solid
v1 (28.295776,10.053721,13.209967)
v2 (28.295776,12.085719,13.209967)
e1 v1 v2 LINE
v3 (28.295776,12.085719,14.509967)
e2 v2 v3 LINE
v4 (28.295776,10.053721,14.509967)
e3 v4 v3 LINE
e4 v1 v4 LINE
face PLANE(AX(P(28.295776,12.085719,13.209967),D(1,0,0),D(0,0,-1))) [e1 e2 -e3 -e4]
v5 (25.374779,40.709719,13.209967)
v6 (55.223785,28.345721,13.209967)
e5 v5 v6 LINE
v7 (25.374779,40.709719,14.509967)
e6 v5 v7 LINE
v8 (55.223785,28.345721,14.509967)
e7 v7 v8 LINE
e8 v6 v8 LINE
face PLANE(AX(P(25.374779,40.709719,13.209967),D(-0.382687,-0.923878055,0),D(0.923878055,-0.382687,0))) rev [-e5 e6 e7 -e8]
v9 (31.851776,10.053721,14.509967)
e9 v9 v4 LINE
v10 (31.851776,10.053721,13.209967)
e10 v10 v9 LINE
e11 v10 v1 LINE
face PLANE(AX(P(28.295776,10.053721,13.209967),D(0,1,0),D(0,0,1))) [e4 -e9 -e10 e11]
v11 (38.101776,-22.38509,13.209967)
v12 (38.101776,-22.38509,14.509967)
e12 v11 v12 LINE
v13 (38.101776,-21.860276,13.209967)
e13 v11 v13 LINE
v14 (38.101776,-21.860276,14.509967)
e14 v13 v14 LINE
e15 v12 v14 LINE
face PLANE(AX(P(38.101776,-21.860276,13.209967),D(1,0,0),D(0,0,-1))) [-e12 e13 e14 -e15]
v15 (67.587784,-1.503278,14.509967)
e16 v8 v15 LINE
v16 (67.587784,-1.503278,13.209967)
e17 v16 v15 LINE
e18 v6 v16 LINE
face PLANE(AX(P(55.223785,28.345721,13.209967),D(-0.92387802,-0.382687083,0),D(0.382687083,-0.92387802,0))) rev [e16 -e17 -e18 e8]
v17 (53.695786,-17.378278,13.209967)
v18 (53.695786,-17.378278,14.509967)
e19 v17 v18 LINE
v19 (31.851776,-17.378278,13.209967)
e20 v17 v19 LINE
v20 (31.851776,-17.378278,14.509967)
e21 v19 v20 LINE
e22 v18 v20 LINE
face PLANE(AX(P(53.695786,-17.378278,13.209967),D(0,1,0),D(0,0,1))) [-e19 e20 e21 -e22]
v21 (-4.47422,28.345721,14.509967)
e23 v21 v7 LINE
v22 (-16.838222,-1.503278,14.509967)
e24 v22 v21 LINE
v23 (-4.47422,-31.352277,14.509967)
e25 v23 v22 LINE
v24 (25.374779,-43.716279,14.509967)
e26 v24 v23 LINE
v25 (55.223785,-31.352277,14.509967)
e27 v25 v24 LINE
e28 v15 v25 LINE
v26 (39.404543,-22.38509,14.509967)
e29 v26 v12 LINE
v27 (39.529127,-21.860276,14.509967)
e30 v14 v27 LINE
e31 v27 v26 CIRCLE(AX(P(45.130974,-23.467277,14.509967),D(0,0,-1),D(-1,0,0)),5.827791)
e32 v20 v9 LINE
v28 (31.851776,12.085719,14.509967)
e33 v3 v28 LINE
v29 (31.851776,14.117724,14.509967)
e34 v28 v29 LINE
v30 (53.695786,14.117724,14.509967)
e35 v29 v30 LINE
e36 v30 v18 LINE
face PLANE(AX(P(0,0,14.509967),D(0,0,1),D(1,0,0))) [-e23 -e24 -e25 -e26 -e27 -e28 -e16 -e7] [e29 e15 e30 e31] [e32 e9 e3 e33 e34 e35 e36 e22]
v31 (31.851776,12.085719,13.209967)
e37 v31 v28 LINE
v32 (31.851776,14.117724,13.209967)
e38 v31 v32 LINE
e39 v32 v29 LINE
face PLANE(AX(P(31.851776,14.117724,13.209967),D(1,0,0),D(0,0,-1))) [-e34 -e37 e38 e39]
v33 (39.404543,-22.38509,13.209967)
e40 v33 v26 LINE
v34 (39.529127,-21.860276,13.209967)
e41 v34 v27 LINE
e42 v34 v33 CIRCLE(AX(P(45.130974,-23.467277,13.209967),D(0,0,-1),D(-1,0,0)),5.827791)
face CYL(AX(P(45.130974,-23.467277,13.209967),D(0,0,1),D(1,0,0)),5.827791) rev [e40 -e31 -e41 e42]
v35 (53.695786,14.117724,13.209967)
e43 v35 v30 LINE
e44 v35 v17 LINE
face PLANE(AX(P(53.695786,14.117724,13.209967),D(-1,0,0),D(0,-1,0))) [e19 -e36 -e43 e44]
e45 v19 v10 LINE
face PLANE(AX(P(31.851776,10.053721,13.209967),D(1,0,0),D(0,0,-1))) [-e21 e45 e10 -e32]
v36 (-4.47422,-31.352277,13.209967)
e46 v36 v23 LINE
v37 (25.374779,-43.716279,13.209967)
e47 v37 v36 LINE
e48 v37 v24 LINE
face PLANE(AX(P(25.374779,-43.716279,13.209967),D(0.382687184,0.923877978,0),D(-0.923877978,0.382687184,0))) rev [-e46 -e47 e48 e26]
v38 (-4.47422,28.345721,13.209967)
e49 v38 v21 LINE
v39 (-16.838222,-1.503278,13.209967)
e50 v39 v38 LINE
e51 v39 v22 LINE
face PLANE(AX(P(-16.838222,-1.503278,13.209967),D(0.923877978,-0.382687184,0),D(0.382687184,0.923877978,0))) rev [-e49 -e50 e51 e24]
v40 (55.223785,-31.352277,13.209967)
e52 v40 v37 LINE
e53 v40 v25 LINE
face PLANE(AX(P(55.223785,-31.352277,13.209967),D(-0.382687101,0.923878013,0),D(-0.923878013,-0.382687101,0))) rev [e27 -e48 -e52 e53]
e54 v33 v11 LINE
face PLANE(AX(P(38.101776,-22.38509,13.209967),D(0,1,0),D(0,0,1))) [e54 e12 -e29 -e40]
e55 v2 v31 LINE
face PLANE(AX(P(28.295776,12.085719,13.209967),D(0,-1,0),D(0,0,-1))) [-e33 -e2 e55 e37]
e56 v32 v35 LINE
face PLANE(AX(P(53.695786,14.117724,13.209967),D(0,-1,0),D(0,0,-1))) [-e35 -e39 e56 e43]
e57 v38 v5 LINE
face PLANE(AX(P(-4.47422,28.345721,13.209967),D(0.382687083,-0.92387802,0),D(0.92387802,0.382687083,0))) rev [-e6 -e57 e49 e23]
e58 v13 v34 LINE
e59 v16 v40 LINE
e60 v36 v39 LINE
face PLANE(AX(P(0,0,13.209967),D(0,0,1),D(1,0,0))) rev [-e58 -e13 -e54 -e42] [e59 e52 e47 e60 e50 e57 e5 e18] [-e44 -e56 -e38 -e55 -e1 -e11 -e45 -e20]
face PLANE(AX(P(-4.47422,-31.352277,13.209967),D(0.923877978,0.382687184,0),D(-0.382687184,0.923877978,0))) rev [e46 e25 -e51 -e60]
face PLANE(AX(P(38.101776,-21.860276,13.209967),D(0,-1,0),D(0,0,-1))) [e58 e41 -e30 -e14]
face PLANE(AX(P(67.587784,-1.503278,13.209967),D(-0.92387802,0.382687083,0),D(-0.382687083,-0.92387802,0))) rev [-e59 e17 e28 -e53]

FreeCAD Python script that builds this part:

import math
import FreeCAD as App
import Part
import Sketcher

V = App.Vector
Q = App.Units.Quantity

doc = App.newDocument("Part")
body = doc.addObject("PartDesign::Body", "Body")

sketch1 = body.newObject("Sketcher::SketchObject", "Sketch")
sketch1.AttachmentSupport = (doc.getObject("XY_Plane"), [""])
sketch1.MapMode = "FlatFace"
sketch1.AttachmentOffset = App.Placement(V(0, 0, 14.509967), App.Rotation())
sketch1.addGeometry(Part.LineSegment(V(55.223785, -31.352277, 0), V(25.374779, -43.716279, 0)), False)
sketch1.addGeometry(Part.LineSegment(V(25.374779, -43.716279, 0), V(-4.47422, -31.352277, 0)), False)
sketch1.addGeometry(Part.LineSegment(V(-4.47422, -31.352277, 0), V(-16.838222, -1.503278, 0)), False)
sketch1.addGeometry(Part.LineSegment(V(-16.838222, -1.503278, 0), V(-4.47422, 28.345721, 0)), False)
sketch1.addGeometry(Part.LineSegment(V(-4.47422, 28.345721, 0), V(25.374779, 40.709719, 0)), False)
sketch1.addGeometry(Part.LineSegment(V(25.374779, 40.709719, 0), V(55.223785, 28.345721, 0)), False)
sketch1.addGeometry(Part.LineSegment(V(55.223785, 28.345721, 0), V(67.587784, -1.503278, 0)), False)
sketch1.addGeometry(Part.LineSegment(V(67.587784, -1.503278, 0), V(55.223785, -31.352277, 0)), False)
sketch1.addGeometry(Part.LineSegment(V(39.529127, -21.860276, 0), V(38.101776, -21.860276, 0)), False)
sketch1.addGeometry(Part.LineSegment(V(38.101776, -21.860276, 0), V(38.101776, -22.38509, 0)), False)
sketch1.addGeometry(Part.LineSegment(V(38.101776, -22.38509, 0), V(39.404543, -22.38509, 0)), False)
sketch1.addGeometry(Part.ArcOfCircle(Part.Circle(V(45.130974, -23.467277, 0), V(0, 0, 1), 5.827791), math.radians(169.298393), math.radians(523.993418)), False)
sketch1.addGeometry(Part.LineSegment(V(28.295776, 10.053721, 0), V(31.851776, 10.053721, 0)), False)
sketch1.addGeometry(Part.LineSegment(V(31.851776, 10.053721, 0), V(31.851776, -17.378278, 0)), False)
sketch1.addGeometry(Part.LineSegment(V(31.851776, -17.378278, 0), V(53.695786, -17.378278, 0)), False)
sketch1.addGeometry(Part.LineSegment(V(53.695786, -17.378278, 0), V(53.695786, 14.117724, 0)), False)
sketch1.addGeometry(Part.LineSegment(V(53.695786, 14.117724, 0), V(31.851776, 14.117724, 0)), False)
sketch1.addGeometry(Part.LineSegment(V(31.851776, 14.117724, 0), V(31.851776, 12.085719, 0)), False)
sketch1.addGeometry(Part.LineSegment(V(31.851776, 12.085719, 0), V(28.295776, 12.085719, 0)), False)
sketch1.addGeometry(Part.LineSegment(V(28.295776, 12.085719, 0), V(28.295776, 10.053721, 0)), False)
sketch1.addConstraint(Sketcher.Constraint("Coincident", 0, 2, 1, 1))
sketch1.addConstraint(Sketcher.Constraint("Coincident", 1, 2, 2, 1))
sketch1.addConstraint(Sketcher.Constraint("Coincident", 2, 2, 3, 1))
sketch1.addConstraint(Sketcher.Constraint("Coincident", 3, 2, 4, 1))
sketch1.addConstraint(Sketcher.Constraint("Coincident", 4, 2, 5, 1))
sketch1.addConstraint(Sketcher.Constraint("Coincident", 5, 2, 6, 1))
sketch1.addConstraint(Sketcher.Constraint("Coincident", 6, 2, 7, 1))
sketch1.addConstraint(Sketcher.Constraint("Coincident", 7, 2, 0, 1))
sketch1.addConstraint(Sketcher.Constraint("Coincident", 8, 2, 9, 1))
sketch1.addConstraint(Sketcher.Constraint("Coincident", 9, 2, 10, 1))
sketch1.addConstraint(Sketcher.Constraint("Coincident", 10, 2, 11, 1))
sketch1.addConstraint(Sketcher.Constraint("Coincident", 11, 2, 8, 1))
sketch1.addConstraint(Sketcher.Constraint("Coincident", 12, 2, 13, 1))
sketch1.addConstraint(Sketcher.Constraint("Coincident", 13, 2, 14, 1))
sketch1.addConstraint(Sketcher.Constraint("Coincident", 14, 2, 15, 1))
sketch1.addConstraint(Sketcher.Constraint("Coincident", 15, 2, 16, 1))
sketch1.addConstraint(Sketcher.Constraint("Coincident", 16, 2, 17, 1))
sketch1.addConstraint(Sketcher.Constraint("Coincident", 17, 2, 18, 1))
sketch1.addConstraint(Sketcher.Constraint("Coincident", 18, 2, 19, 1))
sketch1.addConstraint(Sketcher.Constraint("Coincident", 19, 2, 12, 1))
sketch1.addConstraint(Sketcher.Constraint("Horizontal", 8))
sketch1.addConstraint(Sketcher.Constraint("Vertical", 9))
sketch1.addConstraint(Sketcher.Constraint("Horizontal", 10))
sketch1.addConstraint(Sketcher.Constraint("Horizontal", 12))
sketch1.addConstraint(Sketcher.Constraint("Vertical", 13))
sketch1.addConstraint(Sketcher.Constraint("Horizontal", 14))
sketch1.addConstraint(Sketcher.Constraint("Vertical", 15))
sketch1.addConstraint(Sketcher.Constraint("Horizontal", 16))
sketch1.addConstraint(Sketcher.Constraint("Vertical", 17))
sketch1.addConstraint(Sketcher.Constraint("Horizontal", 18))
sketch1.addConstraint(Sketcher.Constraint("Vertical", 19))
sketch1.addConstraint(Sketcher.Constraint("Perpendicular", 0, 2))
sketch1.addConstraint(Sketcher.Constraint("Perpendicular", 1, 3))
sketch1.addConstraint(Sketcher.Constraint("Perpendicular", 2, 4))
sketch1.addConstraint(Sketcher.Constraint("Perpendicular", 3, 5))
sketch1.addConstraint(Sketcher.Constraint("Perpendicular", 4, 6))
sketch1.addConstraint(Sketcher.Constraint("Perpendicular", 5, 7))
sketch1.addConstraint(Sketcher.Constraint("Horizontal", 3, 2, 5, 2))
sketch1.addConstraint(Sketcher.Constraint("Horizontal", 2, 2, 6, 2))
sketch1.addConstraint(Sketcher.Constraint("Horizontal", 1, 2, 7, 2))
sketch1.addConstraint(Sketcher.Constraint("Vertical", 1, 2, 3, 2))
sketch1.addConstraint(Sketcher.Constraint("Vertical", 0, 2, 4, 2))
sketch1.addConstraint(Sketcher.Constraint("Vertical", 13, 2, 16, 2))
sketch1.addConstraint(Sketcher.Constraint("Equal", 1, 2))
sketch1.addConstraint(Sketcher.Constraint("DistanceX", 12, 1, 12, 2, Q("0.14 in")))
sketch1.addConstraint(Sketcher.Constraint("DistanceY", 13, 2, 13, 1, Q("1.08 in")))
sketch1.addConstraint(Sketcher.Constraint("DistanceY", 15, 1, 15, 2, Q("1.2400001 in")))
sketch1.addConstraint(Sketcher.Constraint("DistanceY", 19, 2, 19, 1, Q("0.0799999 in")))
sketch1.addConstraint(Sketcher.Constraint("Radius", 11, Q("5.827791 mm")))
sketch1.addConstraint(Sketcher.Constraint("DistanceX", 4, 2, 12, 2, Q("0.2549999 in")))
sketch1.addConstraint(Sketcher.Constraint("DistanceY", 6, 2, 15, 2, Q("0.6150001 in")))
sketch1.addConstraint(Sketcher.Constraint("DistanceX", 11, 2, 7, 2, Q("0.6178999 in")))
sketch1.addConstraint(Sketcher.Constraint("DistanceX", 8, 2, 8, 1, Q("1.427351 mm")))
sketch1.addConstraint(Sketcher.Constraint("DistanceX", 14, 1, 14, 2, Q("21.844009 mm")))
sketch1.addConstraint(Sketcher.Constraint("DistanceX", 1, 2, 0, 2, Q("29.848999 mm")))
sketch1.addConstraint(Sketcher.Constraint("DistanceY", 1, 2, 11, 3, Q("7.885 mm")))
sketch1.addConstraint(Sketcher.Constraint("DistanceX", 2, 2, 0, 2, Q("42.213001 mm")))
sketch1.addConstraint(Sketcher.Constraint("DistanceY", 11, 3, 8, 2, Q("1.607 mm")))
sketch1.addConstraint(Sketcher.Constraint("DistanceX", 10, 1, 10, 2, Q("1.302767 mm")))
sketch1.addConstraint(Sketcher.Constraint("DistanceX", -1, 1, 0, 2, Q("25.374779 mm")))
sketch1.addConstraint(Sketcher.Constraint("DistanceY", 0, 2, -1, 1, Q("43.716279 mm")))
pad1 = body.newObject("PartDesign::Pad", "Pad")
pad1.Profile = sketch1
pad1.Length = 1.3
pad1.Reversed = True

doc.recompute()
